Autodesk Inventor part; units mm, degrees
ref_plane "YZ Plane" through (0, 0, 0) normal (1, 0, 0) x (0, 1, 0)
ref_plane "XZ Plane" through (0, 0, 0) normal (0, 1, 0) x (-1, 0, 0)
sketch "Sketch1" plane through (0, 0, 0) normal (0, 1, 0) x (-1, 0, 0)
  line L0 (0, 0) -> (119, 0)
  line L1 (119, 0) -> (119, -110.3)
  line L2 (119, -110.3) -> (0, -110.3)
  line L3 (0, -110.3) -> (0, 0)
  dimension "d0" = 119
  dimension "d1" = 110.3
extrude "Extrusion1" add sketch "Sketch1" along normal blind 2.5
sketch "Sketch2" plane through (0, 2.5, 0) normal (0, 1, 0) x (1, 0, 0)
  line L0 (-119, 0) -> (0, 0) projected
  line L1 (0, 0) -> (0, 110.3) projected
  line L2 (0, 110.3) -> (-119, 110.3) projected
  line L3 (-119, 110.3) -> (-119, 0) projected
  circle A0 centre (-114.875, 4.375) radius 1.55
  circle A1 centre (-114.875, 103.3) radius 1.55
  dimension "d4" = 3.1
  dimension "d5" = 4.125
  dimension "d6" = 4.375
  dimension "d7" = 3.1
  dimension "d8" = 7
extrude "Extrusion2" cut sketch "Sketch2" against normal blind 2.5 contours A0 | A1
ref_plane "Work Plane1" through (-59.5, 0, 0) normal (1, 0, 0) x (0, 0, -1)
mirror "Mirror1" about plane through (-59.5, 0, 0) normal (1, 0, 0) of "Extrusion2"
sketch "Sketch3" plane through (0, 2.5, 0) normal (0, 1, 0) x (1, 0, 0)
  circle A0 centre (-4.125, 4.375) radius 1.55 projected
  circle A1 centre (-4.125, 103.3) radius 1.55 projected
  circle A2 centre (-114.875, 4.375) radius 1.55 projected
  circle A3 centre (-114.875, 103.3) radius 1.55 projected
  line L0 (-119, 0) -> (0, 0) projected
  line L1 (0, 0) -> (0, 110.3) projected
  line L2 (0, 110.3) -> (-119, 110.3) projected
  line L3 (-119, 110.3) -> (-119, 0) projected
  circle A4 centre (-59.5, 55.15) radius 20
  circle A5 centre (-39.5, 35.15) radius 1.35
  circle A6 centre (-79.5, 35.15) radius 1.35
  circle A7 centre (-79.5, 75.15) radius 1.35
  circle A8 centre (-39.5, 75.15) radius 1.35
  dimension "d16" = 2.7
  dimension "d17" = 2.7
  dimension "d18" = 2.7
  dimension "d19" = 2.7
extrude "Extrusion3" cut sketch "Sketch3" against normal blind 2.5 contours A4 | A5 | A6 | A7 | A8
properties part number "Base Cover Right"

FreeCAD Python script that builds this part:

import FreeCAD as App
import Part
import Sketcher
Q = App.Units.Quantity

doc = App.newDocument("Part")
body = doc.addObject("PartDesign::Body", "Body")

# Sketch on XZ plane
sketch1 = body.newObject("Sketcher::SketchObject", "Sketch")
sketch1.AttachmentSupport = (doc.getObject("XZ_Plane"), [""])
sketch1.MapMode = "FlatFace"
sketch1.addGeometry([
    Part.LineSegment(App.Vector(-119, 0, 0), App.Vector(0, 0, 0)),
    Part.LineSegment(App.Vector(0, 0, 0), App.Vector(0, -110, 0)),
    Part.LineSegment(App.Vector(0, -110, 0), App.Vector(-119, -110, 0)),
    Part.LineSegment(App.Vector(-119, -110, 0), App.Vector(-119, 0, 0)),
], False)
sketch1.addConstraint([
    Sketcher.Constraint("Coincident", 0, 2, 1, 1),
    Sketcher.Constraint("Coincident", 1, 2, 2, 1),
    Sketcher.Constraint("Coincident", 2, 2, 3, 1),
    Sketcher.Constraint("Coincident", 3, 2, 0, 1),
    Sketcher.Constraint("Horizontal", 0),
    Sketcher.Constraint("Vertical", 1),
    Sketcher.Constraint("Horizontal", 2),
    Sketcher.Constraint("Vertical", 3),
    Sketcher.Constraint("Coincident", 0, 2, -1, 1),
    Sketcher.Constraint("DistanceX", 0, 1, 0, 2, Q("119 mm")),
    Sketcher.Constraint("DistanceY", 1, 2, 1, 1, Q("110.3 mm")),
])
pad1 = body.newObject("PartDesign::Pad", "Pad")
pad1.Profile = sketch1
pad1.Length = 2.5
pad1.Reversed = True

# Sketch on XZ plane
sketch2 = body.newObject("Sketcher::SketchObject", "Sketch001")
sketch2.AttachmentSupport = (doc.getObject("XZ_Plane"), [""])
sketch2.MapMode = "FlatFace"
sketch2.AttachmentOffset = App.Placement(App.Vector(0, 0, -2.5), App.Rotation())
sketch2.addGeometry([
    Part.Circle(App.Vector(-114.9, -4.4, 0), App.Vector(0, 0, 1), 1.6),
    Part.Circle(App.Vector(-114.9, -103.3, 0), App.Vector(0, 0, 1), 1.6),
], False)
sketch2.addConstraint([
    Sketcher.Constraint("Equal", 0, 1),
    Sketcher.Constraint("Vertical", 0, 3, 1, 3),
    Sketcher.Constraint("Diameter", 0, Q("3.1 mm")),
    Sketcher.Constraint("DistanceY", 0, 3, -1, 1, Q("4.375 mm")),
    Sketcher.Constraint("DistanceY", 1, 3, -1, 1, Q("103.3 mm")),
    Sketcher.Constraint("DistanceX", 0, 3, -1, 1, Q("114.875 mm")),
])
pocket1 = body.newObject("PartDesign::Pocket", "Pocket")
pocket1.Profile = sketch2
pocket1.Length = 2.5
pocket1.Reversed = True
doc.recompute()

datumplane = body.newObject("PartDesign::Plane", "DatumPlane")
datumplane.AttachmentSupport = (doc.getObject("YZ_Plane"), [""])
datumplane.MapMode = "FlatFace"
datumplane.AttachmentOffset = App.Placement(App.Vector(0, 0, -59.5), App.Rotation())
mirrored = body.newObject("PartDesign::Mirrored", "Mirrored")
mirrored.Originals = [pocket1]
mirrored.MirrorPlane = (datumplane, [""])
body.Tip = mirrored

# Sketch on XZ plane
sketch3 = body.newObject("Sketcher::SketchObject", "Sketch002")
sketch3.AttachmentSupport = (doc.getObject("XZ_Plane"), [""])
sketch3.MapMode = "FlatFace"
sketch3.AttachmentOffset = App.Placement(App.Vector(0, 0, -2.5), App.Rotation())
sketch3.addGeometry([
    Part.Circle(App.Vector(-59.5, -55.1, 0), App.Vector(0, 0, 1), 20),  # 0
    Part.Circle(App.Vector(-39.5, -35.1, 0), App.Vector(0, 0, 1), 1.4),  # 1
    Part.Circle(App.Vector(-79.5, -35.1, 0), App.Vector(0, 0, 1), 1.4),  # 2
    Part.Circle(App.Vector(-79.5, -75.2, 0), App.Vector(0, 0, 1), 1.4),  # 3
    Part.Circle(App.Vector(-39.5, -75.2, 0), App.Vector(0, 0, 1), 1.4),  # 4
], False)
sketch3.addConstraint([
    Sketcher.Constraint("Equal", 1, 2),
    Sketcher.Constraint("Equal", 2, 3),
    Sketcher.Constraint("Equal", 3, 4),
    Sketcher.Constraint("Horizontal", 1, 3, 2, 3),
    Sketcher.Constraint("Horizontal", 3, 3, 4, 3),
    Sketcher.Constraint("Vertical", 2, 3, 3, 3),
    Sketcher.Constraint("Vertical", 1, 3, 4, 3),
    Sketcher.Constraint("Diameter", 1, Q("2.7 mm")),
    Sketcher.Constraint("Diameter", 0, Q("40 mm")),
    Sketcher.Constraint("DistanceX", 0, 3, 1, 3, Q("20 mm")),
    Sketcher.Constraint("DistanceY", 0, 3, 1, 3, Q("20 mm")),
    Sketcher.Constraint("DistanceX", 2, 3, 0, 3, Q("20 mm")),
    Sketcher.Constraint("DistanceY", 3, 3, 0, 3, Q("20 mm")),
    Sketcher.Constraint("DistanceX", 0, 3, -1, 1, Q("59.5 mm")),
    Sketcher.Constraint("DistanceY", 0, 3, -1, 1, Q("55.15 mm")),
])
pocket2 = body.newObject("PartDesign::Pocket", "Pocket001")
pocket2.Profile = sketch3
pocket2.Length = 2.5
pocket2.Reversed = True

doc.recompute()
